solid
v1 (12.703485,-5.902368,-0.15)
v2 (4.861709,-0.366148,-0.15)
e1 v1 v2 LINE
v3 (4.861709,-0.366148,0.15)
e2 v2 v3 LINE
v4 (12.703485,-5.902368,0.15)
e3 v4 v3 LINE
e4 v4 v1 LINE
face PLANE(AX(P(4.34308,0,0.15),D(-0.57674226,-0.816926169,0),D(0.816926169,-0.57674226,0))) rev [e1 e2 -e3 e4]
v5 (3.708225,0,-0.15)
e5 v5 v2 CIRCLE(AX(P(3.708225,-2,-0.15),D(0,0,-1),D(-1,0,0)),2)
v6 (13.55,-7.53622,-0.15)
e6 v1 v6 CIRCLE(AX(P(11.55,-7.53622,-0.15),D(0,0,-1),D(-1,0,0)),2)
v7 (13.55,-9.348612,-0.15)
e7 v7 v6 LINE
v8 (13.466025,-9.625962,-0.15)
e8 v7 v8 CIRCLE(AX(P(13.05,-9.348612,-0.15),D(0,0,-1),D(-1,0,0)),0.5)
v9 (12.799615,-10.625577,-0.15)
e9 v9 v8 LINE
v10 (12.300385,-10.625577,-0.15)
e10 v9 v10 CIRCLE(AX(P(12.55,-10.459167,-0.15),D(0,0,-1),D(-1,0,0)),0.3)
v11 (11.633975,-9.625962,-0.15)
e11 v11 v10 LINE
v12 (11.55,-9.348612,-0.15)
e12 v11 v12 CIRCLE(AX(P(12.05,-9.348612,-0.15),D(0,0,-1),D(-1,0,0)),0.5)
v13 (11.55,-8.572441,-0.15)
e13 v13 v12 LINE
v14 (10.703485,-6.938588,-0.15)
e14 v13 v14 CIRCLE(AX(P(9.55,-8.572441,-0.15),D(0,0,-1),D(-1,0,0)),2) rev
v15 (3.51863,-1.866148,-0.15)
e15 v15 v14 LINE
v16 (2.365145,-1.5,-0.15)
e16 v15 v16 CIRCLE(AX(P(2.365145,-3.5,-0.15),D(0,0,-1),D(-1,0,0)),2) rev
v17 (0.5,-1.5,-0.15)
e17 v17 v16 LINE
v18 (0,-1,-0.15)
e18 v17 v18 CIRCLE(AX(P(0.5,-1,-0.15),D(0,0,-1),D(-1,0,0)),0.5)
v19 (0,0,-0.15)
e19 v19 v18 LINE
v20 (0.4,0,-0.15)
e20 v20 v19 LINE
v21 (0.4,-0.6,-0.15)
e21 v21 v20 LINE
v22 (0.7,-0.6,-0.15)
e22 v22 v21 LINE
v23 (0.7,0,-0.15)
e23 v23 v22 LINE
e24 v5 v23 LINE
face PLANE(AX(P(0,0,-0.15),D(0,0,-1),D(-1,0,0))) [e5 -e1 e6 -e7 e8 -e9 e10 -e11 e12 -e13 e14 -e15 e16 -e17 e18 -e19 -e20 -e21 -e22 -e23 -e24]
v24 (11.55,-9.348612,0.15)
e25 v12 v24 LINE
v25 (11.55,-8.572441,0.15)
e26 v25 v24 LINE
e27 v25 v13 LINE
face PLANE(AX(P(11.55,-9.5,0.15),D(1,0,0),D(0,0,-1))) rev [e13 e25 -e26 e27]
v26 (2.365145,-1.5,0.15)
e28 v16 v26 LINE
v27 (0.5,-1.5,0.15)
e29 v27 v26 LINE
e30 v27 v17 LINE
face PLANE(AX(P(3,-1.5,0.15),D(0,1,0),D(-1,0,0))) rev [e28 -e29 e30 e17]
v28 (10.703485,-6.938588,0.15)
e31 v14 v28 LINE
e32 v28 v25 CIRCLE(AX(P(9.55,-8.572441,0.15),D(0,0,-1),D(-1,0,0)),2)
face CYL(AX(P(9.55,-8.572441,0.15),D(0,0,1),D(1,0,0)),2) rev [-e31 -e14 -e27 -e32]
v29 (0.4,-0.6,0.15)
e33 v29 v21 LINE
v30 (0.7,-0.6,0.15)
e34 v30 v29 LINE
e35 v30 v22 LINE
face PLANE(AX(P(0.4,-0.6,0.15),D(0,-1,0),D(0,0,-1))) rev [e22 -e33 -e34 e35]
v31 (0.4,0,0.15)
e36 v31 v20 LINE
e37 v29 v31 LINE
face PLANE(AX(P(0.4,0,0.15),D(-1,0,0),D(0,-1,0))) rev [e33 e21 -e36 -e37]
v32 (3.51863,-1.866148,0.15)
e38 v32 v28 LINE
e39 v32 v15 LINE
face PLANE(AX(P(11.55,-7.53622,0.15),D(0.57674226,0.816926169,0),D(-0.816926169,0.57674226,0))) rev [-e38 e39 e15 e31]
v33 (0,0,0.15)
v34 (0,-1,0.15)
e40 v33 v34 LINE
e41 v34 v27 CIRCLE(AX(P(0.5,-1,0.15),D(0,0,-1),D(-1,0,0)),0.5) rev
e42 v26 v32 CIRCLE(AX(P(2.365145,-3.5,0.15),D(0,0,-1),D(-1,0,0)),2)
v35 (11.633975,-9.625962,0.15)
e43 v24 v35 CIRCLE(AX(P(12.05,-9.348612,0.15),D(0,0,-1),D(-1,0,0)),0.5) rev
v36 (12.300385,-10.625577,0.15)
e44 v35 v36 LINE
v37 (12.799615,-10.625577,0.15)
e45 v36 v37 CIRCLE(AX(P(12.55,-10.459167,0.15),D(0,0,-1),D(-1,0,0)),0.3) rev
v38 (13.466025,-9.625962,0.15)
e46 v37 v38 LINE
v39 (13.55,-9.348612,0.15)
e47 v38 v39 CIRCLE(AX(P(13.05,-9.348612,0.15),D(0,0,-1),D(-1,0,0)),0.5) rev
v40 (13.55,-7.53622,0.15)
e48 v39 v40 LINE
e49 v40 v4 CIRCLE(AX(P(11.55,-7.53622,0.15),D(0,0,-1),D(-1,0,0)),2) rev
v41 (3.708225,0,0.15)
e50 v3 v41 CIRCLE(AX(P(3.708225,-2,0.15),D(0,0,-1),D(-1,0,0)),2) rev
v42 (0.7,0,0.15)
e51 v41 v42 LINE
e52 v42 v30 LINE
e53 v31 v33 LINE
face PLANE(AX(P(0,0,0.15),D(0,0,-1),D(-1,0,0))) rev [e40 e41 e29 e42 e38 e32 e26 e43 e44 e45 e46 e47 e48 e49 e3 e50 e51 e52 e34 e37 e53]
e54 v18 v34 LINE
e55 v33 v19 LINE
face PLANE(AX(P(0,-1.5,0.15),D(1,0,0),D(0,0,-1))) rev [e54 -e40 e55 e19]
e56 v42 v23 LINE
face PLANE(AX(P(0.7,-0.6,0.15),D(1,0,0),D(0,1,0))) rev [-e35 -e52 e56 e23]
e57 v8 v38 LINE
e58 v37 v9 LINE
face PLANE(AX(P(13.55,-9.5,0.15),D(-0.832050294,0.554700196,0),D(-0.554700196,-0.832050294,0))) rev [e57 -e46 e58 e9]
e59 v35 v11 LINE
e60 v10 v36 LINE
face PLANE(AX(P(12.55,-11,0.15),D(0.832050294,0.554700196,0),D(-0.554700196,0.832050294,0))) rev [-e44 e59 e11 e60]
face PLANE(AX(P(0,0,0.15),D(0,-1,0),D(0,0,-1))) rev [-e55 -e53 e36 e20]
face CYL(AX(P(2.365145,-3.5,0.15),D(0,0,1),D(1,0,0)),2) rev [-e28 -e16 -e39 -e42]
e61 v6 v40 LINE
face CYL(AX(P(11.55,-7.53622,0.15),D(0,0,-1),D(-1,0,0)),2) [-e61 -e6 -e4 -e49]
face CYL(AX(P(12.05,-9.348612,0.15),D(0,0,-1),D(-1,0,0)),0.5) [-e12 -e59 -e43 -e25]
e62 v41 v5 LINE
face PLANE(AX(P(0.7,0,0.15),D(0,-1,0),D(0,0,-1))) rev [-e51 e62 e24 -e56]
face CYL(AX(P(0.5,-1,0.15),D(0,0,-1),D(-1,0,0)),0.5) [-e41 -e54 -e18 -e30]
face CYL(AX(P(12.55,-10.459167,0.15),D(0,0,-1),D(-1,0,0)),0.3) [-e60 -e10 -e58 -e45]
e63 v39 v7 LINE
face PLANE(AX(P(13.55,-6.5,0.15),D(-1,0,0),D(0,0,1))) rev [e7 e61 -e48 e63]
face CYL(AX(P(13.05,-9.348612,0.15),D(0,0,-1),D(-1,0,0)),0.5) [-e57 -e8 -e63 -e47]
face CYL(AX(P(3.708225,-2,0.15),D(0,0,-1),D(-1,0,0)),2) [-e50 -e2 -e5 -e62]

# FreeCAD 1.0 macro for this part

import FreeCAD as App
import Part
import Sketcher


def edges_at(feature, points):
    """Names of the edges that pass closest to the given points."""
    edges = feature.Shape.Edges
    near = lambda p: min(range(len(edges)), key=lambda i: edges[i].distToShape(Part.Vertex(*p))[0])
    return sorted({f"Edge{near(p) + 1}" for p in points})


def add_polygon(sketch, points):
    """Adds a closed chain of lines whose ends are joined by coincident constraints."""
    first, n = sketch.GeometryCount, len(points)
    for a, b in zip(points, points[1:] + points[:1]):
        sketch.addGeometry(Part.LineSegment(App.Vector(*a, 0), App.Vector(*b, 0)), False)
    for i in range(n):
        sketch.addConstraint(Sketcher.Constraint("Coincident", first + i, 2, first + (i + 1) % n, 1))

doc = App.newDocument("Part")
params = doc.addObject("Spreadsheet::Sheet", "Params")
for row, (alias, value) in enumerate([
    ("sketch1_width", "3 mm"),
    ("sketch1_width2", "0.4 mm"),
    ("sketch1_width3", "0.3 mm"),
    ("sketch1_height", "1.5 mm"),
    ("sketch1_height2", "0.6 mm"),
    ("pad1_length", "0.3 mm"),
    ("fillet_radius", "0.3 mm"),
    ("fillet2_radius", "0.5 mm"),
    ("fillet3_radius", "2 mm"),
], start=1):
    params.set(f"A{row}", alias)
    params.set(f"B{row}", "=" + value)
    params.setAlias(f"B{row}", alias)

body = doc.addObject("PartDesign::Body", "Body")

sketch1 = body.newObject("Sketcher::SketchObject", "Sketch")
sketch1.AttachmentSupport = (doc.getObject("XY_Plane"), [""])
sketch1.MapMode = "FlatFace"
add_polygon(sketch1, [(0.4, 0), (0, 0), (0, -1.5), (3, -1.5), (11.55, -7.54), (11.55, -9.5), (12.55, -11), (13.55, -9.5), (13.55, -6.5), (4.34, 0), (0.7, 0), (0.7, -0.6), (0.4, -0.6)])
sketch1.addConstraint([
    Sketcher.Constraint("Horizontal", 0),
    Sketcher.Constraint("Vertical", 1),
    Sketcher.Constraint("Horizontal", 2),
    Sketcher.Constraint("Vertical", 4),
    Sketcher.Constraint("Vertical", 7),
    Sketcher.Constraint("Horizontal", 9),
    Sketcher.Constraint("Vertical", 10),
    Sketcher.Constraint("Horizontal", 11),
    Sketcher.Constraint("Vertical", 12),
    Sketcher.Constraint("Coincident", 0, 2, -1, 1),
    Sketcher.Constraint("PointOnObject", 8, 2, -1),
    Sketcher.Constraint("Parallel", 3, 8),
    Sketcher.Constraint("Horizontal", 4, 2, 6, 2),
    Sketcher.Constraint("Equal", 2, 7),
    Sketcher.Constraint("Equal", 5, 6),
    Sketcher.Constraint("DistanceX", 2, 1, 2, 2, 3.0),
    Sketcher.Constraint("DistanceX", 0, 2, 0, 1, 0.4),
    Sketcher.Constraint("DistanceX", 11, 2, 11, 1, 0.3),
    Sketcher.Constraint("DistanceY", 1, 2, 1, 1, 1.5),
    Sketcher.Constraint("DistanceY", 10, 2, 10, 1, 0.6),
    Sketcher.Constraint("DistanceY", 5, 2, -1, 1, 11.0),
    Sketcher.Constraint("DistanceY", 4, 2, 2, 2, 8.0),
    Sketcher.Constraint("DistanceX", 4, 2, 5, 2, 1.0),
    Sketcher.Constraint("DistanceX", -1, 1, 3, 2, 11.55),
    Sketcher.Constraint("Distance", 8, 11.270199),
])
sketch1.setExpression("Constraints[28]", "Params.sketch1_width")
sketch1.setExpression("Constraints[29]", "Params.sketch1_width2")
sketch1.setExpression("Constraints[30]", "Params.sketch1_width3")
sketch1.setExpression("Constraints[31]", "Params.sketch1_height")
sketch1.setExpression("Constraints[32]", "Params.sketch1_height2")
pad1 = body.newObject("PartDesign::Pad", "Pad")
pad1.Profile = sketch1
pad1.setExpression("Length", "Params.pad1_length")
pad1.Midplane = True
doc.recompute()

fillet = body.newObject("PartDesign::Fillet", "Fillet")
fillet.Base = (pad1, edges_at(pad1, [(12.55, -11, 0)]))
fillet.setExpression("Radius", "Params.fillet_radius")
doc.recompute()

fillet2 = body.newObject("PartDesign::Fillet", "Fillet001")
fillet2.Base = (fillet, edges_at(fillet, [(13.55, -9.5, 0), (11.55, -9.5, 0), (0, -1.5, 0)]))
fillet2.setExpression("Radius", "Params.fillet2_radius")
doc.recompute()

fillet3 = body.newObject("PartDesign::Fillet", "Fillet002")
fillet3.Base = (fillet2, edges_at(fillet2, [
    (4.343, 0, 0),
    (13.55, -6.5, 0),
    (11.55, -7.536, 0),
    (3, -1.5, 0),
]))
fillet3.setExpression("Radius", "Params.fillet3_radius")

doc.recompute()
